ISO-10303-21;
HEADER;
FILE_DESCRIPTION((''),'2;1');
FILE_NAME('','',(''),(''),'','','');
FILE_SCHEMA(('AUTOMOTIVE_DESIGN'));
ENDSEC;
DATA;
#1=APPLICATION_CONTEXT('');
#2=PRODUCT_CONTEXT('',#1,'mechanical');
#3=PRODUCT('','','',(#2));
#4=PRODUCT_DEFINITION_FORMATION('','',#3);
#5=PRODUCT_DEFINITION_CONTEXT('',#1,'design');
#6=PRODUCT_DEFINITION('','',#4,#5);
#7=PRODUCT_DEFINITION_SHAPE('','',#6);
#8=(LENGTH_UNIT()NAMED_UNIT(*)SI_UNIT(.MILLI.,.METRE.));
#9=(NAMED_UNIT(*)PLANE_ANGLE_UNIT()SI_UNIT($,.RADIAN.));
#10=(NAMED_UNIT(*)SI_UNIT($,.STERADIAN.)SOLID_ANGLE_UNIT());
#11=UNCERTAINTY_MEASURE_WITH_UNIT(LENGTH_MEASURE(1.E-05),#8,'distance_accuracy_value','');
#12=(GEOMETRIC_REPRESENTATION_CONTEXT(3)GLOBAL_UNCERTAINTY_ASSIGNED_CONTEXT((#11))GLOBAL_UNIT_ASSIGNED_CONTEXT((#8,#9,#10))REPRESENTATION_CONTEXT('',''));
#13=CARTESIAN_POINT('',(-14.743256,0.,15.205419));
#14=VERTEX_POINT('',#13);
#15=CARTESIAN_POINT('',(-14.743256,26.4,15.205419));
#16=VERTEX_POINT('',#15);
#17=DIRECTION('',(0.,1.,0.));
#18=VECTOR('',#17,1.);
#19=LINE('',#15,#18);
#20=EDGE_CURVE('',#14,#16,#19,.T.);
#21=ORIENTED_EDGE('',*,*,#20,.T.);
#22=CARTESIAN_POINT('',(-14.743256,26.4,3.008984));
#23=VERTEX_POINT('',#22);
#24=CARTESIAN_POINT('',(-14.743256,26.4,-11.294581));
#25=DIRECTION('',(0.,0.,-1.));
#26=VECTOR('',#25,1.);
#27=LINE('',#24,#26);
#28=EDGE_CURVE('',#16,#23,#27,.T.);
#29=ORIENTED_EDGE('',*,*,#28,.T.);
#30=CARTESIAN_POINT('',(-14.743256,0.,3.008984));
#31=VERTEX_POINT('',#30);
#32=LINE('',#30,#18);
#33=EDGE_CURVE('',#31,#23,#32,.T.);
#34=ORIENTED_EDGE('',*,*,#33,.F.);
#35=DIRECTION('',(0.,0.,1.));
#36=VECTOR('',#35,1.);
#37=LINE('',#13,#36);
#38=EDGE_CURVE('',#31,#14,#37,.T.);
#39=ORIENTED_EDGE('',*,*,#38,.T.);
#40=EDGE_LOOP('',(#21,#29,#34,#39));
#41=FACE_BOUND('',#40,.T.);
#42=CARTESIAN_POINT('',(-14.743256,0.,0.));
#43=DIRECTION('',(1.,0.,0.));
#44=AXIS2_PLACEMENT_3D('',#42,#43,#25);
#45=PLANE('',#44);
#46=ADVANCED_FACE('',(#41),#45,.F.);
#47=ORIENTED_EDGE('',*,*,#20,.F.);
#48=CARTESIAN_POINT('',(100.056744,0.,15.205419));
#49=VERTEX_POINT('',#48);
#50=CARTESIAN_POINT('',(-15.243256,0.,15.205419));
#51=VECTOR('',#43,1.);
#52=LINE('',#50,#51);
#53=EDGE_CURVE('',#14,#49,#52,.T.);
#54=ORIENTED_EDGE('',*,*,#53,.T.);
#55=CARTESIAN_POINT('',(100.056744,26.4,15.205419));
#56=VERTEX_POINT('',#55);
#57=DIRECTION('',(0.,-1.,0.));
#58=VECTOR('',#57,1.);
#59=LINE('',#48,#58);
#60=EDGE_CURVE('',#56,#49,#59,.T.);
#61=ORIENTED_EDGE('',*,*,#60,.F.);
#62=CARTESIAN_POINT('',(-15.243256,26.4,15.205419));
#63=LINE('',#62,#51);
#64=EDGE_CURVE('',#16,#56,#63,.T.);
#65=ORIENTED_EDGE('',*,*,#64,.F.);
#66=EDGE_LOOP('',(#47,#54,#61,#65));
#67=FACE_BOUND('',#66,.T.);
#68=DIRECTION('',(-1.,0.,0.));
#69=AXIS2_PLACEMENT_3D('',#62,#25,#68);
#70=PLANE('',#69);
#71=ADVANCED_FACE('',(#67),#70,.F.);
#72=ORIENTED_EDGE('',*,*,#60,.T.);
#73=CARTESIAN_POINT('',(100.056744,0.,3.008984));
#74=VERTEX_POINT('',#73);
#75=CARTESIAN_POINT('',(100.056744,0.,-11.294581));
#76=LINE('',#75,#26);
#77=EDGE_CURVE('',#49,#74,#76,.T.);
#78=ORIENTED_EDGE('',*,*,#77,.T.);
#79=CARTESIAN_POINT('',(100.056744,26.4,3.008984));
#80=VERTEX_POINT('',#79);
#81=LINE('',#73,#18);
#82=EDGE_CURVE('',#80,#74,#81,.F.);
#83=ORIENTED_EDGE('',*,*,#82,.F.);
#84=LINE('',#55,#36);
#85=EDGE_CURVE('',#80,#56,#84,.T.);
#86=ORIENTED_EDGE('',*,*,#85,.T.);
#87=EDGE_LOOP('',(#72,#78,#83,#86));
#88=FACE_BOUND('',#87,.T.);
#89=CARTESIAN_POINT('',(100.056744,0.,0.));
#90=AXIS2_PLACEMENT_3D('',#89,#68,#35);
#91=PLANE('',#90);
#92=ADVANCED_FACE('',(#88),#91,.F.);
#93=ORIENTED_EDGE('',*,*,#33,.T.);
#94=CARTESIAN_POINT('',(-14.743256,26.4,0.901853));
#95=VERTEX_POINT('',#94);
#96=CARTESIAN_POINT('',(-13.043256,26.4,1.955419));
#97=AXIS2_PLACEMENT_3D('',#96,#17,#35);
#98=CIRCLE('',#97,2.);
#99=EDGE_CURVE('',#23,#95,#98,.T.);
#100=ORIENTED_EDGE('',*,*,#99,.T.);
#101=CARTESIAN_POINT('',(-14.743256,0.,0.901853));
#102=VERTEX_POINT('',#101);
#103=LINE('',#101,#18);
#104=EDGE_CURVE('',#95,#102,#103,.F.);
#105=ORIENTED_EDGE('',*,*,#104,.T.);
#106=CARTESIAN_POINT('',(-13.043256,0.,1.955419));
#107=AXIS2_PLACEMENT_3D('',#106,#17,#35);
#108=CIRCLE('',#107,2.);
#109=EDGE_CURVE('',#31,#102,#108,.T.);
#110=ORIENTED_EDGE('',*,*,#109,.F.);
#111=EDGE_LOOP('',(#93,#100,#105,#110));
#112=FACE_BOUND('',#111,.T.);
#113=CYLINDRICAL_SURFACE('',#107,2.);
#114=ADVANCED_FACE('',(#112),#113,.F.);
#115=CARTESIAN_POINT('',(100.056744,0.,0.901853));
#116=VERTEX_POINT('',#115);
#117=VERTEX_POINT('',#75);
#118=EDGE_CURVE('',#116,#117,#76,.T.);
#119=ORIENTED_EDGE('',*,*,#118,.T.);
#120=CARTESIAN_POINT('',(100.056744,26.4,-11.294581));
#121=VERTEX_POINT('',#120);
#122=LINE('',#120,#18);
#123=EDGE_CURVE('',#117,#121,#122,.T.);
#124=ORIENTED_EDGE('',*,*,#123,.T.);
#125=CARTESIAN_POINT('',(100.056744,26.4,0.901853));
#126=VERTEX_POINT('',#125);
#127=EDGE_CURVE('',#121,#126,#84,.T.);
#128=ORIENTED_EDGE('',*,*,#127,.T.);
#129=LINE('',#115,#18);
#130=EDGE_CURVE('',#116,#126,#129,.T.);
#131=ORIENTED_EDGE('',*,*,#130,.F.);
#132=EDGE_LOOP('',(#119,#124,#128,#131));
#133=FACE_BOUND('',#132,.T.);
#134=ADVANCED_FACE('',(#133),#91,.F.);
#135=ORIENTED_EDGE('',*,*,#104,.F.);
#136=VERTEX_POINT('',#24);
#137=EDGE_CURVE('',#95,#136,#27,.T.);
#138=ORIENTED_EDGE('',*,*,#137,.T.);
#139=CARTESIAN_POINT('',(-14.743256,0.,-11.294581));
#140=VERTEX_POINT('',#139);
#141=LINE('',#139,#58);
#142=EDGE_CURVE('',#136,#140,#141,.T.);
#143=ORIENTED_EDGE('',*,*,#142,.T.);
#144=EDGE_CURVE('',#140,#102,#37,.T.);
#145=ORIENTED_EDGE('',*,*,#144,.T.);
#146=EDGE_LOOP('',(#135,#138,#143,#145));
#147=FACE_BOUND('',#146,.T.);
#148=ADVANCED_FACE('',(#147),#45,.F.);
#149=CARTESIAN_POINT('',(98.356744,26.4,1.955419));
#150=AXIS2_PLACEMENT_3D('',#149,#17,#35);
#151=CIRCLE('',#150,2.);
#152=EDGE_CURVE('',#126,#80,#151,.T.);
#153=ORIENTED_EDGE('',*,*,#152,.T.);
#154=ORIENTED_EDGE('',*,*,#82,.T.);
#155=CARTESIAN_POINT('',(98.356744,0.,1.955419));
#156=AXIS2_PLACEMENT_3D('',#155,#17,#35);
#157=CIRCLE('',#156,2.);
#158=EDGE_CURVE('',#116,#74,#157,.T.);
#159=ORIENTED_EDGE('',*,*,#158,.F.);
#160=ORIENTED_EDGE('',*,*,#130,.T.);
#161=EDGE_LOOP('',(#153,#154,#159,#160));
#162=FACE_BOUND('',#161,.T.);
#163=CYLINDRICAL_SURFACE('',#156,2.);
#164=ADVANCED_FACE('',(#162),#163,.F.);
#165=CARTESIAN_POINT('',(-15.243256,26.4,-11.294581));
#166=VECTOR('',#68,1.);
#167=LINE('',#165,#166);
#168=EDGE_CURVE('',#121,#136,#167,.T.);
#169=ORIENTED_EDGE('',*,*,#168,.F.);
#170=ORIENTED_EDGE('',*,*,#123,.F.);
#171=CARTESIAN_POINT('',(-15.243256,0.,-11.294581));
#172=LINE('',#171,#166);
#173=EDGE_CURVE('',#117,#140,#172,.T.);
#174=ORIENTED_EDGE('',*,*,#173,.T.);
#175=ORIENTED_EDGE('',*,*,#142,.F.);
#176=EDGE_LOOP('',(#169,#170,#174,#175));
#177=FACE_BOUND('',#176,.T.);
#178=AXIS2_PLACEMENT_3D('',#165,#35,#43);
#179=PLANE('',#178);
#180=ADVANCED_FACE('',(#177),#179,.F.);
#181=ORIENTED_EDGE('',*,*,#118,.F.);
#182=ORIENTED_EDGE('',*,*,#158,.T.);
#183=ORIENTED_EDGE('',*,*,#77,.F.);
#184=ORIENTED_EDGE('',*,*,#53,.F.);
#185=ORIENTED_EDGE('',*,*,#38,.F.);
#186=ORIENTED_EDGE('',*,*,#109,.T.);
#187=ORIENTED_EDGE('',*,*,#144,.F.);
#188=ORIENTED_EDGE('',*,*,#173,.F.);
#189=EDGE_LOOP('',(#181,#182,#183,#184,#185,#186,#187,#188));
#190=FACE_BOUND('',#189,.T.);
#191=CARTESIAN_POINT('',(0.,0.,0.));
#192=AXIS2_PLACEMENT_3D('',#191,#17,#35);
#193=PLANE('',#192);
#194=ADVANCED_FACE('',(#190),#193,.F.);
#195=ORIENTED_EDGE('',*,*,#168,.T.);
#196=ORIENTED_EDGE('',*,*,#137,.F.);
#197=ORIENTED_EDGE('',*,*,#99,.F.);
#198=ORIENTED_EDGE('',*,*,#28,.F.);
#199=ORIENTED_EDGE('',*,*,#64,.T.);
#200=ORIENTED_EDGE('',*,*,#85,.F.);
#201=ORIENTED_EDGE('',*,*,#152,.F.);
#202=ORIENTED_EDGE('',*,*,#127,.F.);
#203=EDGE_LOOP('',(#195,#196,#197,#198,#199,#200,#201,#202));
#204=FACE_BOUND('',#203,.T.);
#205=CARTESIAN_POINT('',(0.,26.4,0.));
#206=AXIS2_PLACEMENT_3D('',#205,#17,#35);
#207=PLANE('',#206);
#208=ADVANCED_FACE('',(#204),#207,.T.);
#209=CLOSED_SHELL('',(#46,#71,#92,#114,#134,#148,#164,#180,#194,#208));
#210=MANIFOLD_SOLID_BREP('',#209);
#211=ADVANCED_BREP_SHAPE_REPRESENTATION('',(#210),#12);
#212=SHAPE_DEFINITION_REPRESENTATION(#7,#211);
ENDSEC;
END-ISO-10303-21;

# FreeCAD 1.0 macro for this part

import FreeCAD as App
import Part
import Sketcher
from FreeCAD import Vector

doc = App.newDocument("Part")
params = doc.addObject("Spreadsheet::Sheet", "Params")
for row, (alias, value) in enumerate([
    ("sketch1_width", "115.8 mm"),
    ("sketch1_height", "26.5 mm"),
    ("pad1_length", "26.4 mm"),
    ("sketch2_diameter", "4 mm"),
    ("sketch3_width", "26.4 mm"),
    ("sketch3_height", "26.5 mm"),
    ("pocket2_length", "0.5 mm"),
    ("sketch4_width", "26.4 mm"),
    ("sketch4_height", "26.5 mm"),
    ("pocket3_length", "0.5 mm"),
], start=1):
    params.set(f"A{row}", alias)
    params.set(f"B{row}", "=" + value)
    params.setAlias(f"B{row}", alias)

body = doc.addObject("PartDesign::Body", "Body")

# Sketch on XZ plane
sketch1 = body.newObject("Sketcher::SketchObject", "Sketch")
sketch1.AttachmentSupport = (doc.getObject("XZ_Plane"), [""])
sketch1.MapMode = "FlatFace"
sketch1.addGeometry([
    Part.LineSegment(Vector(-15, -11, 0), Vector(-15, 15, 0)),
    Part.LineSegment(Vector(-15, 15, 0), Vector(101, 15, 0)),
    Part.LineSegment(Vector(101, 15, 0), Vector(101, -11, 0)),
    Part.LineSegment(Vector(101, -11, 0), Vector(-15, -11, 0)),
], False)
sketch1.addConstraint([
    Sketcher.Constraint("Coincident", 0, 2, 1, 1),
    Sketcher.Constraint("Coincident", 1, 2, 2, 1),
    Sketcher.Constraint("Coincident", 2, 2, 3, 1),
    Sketcher.Constraint("Coincident", 3, 2, 0, 1),
    Sketcher.Constraint("Vertical", 0),
    Sketcher.Constraint("Horizontal", 1),
    Sketcher.Constraint("Vertical", 2),
    Sketcher.Constraint("Horizontal", 3),
    Sketcher.Constraint("DistanceX", 1, 1, 1, 2, 115.8),
    Sketcher.Constraint("DistanceY", 0, 1, 0, 2, 26.5),
    Sketcher.Constraint("DistanceY", -1, 1, 0, 2, 15.205419),
    Sketcher.Constraint("DistanceX", 0, 2, -1, 1, 15.243256),
])
sketch1.setExpression("Constraints[8]", "Params.sketch1_width")
sketch1.setExpression("Constraints[9]", "Params.sketch1_height")
pad1 = body.newObject("PartDesign::Pad", "Pad")
pad1.Profile = sketch1
pad1.setExpression("Length", "Params.pad1_length")
pad1.Reversed = True

# Sketch on XZ plane
sketch2 = body.newObject("Sketcher::SketchObject", "Sketch001")
sketch2.AttachmentSupport = (doc.getObject("XZ_Plane"), [""])
sketch2.MapMode = "FlatFace"
sketch2.AttachmentOffset = App.Placement(Vector(0, 0, -26.4), App.Rotation())
sketch2.addGeometry([
    Part.Circle(Vector(-13, 2, 0), Vector(0, 0, 1), 2),
    Part.Circle(Vector(98.4, 2, 0), Vector(0, 0, 1), 2),
], False)
sketch2.addConstraint([
    Sketcher.Constraint("Equal", 0, 1),
    Sketcher.Constraint("Horizontal", 0, 3, 1, 3),
    Sketcher.Constraint("Diameter", 0, 4.0),
    Sketcher.Constraint("DistanceX", 0, 3, 1, 3, 111.4),
    Sketcher.Constraint("DistanceY", -1, 1, 0, 3, 1.955419),
    Sketcher.Constraint("DistanceX", 0, 3, -1, 1, 13.043256),
])
sketch2.setExpression("Constraints[2]", "Params.sketch2_diameter")
pocket1 = body.newObject("PartDesign::Pocket", "Pocket")
pocket1.Profile = sketch2
pocket1.Type = "ThroughAll"
pocket1.Reversed = True

# Sketch on YZ plane
sketch3 = body.newObject("Sketcher::SketchObject", "Sketch002")
sketch3.AttachmentSupport = (doc.getObject("YZ_Plane"), [""])
sketch3.MapMode = "FlatFace"
sketch3.AttachmentOffset = App.Placement(Vector(0, 0, 100.556744), App.Rotation())
sketch3.addGeometry([
    Part.LineSegment(Vector(26, 15, 0), Vector(0, 15, 0)),
    Part.LineSegment(Vector(0, 15, 0), Vector(0, -11, 0)),
    Part.LineSegment(Vector(0, -11, 0), Vector(26, -11, 0)),
    Part.LineSegment(Vector(26, -11, 0), Vector(26, 15, 0)),
], False)
sketch3.addConstraint([
    Sketcher.Constraint("Coincident", 0, 2, 1, 1),
    Sketcher.Constraint("Coincident", 1, 2, 2, 1),
    Sketcher.Constraint("Coincident", 2, 2, 3, 1),
    Sketcher.Constraint("Coincident", 3, 2, 0, 1),
    Sketcher.Constraint("Horizontal", 0),
    Sketcher.Constraint("Vertical", 1),
    Sketcher.Constraint("Horizontal", 2),
    Sketcher.Constraint("Vertical", 3),
    Sketcher.Constraint("PointOnObject", 0, 2, -2),
    Sketcher.Constraint("DistanceX", 0, 2, 0, 1, 26.4),
    Sketcher.Constraint("DistanceY", 1, 2, 1, 1, 26.5),
    Sketcher.Constraint("DistanceY", -1, 1, 0, 2, 15.205419),
])
sketch3.setExpression("Constraints[9]", "Params.sketch3_width")
sketch3.setExpression("Constraints[10]", "Params.sketch3_height")
pocket2 = body.newObject("PartDesign::Pocket", "Pocket001")
pocket2.Profile = sketch3
pocket2.setExpression("Length", "Params.pocket2_length")

# Sketch on YZ plane
sketch4 = body.newObject("Sketcher::SketchObject", "Sketch003")
sketch4.AttachmentSupport = (doc.getObject("YZ_Plane"), [""])
sketch4.MapMode = "FlatFace"
sketch4.AttachmentOffset = App.Placement(Vector(0, 0, -15.243256), App.Rotation())
sketch4.addGeometry([
    Part.LineSegment(Vector(26, -11, 0), Vector(0, -11, 0)),
    Part.LineSegment(Vector(0, -11, 0), Vector(0, 15, 0)),
    Part.LineSegment(Vector(0, 15, 0), Vector(26, 15, 0)),
    Part.LineSegment(Vector(26, 15, 0), Vector(26, -11, 0)),
], False)
sketch4.addConstraint([
    Sketcher.Constraint("Coincident", 0, 2, 1, 1),
    Sketcher.Constraint("Coincident", 1, 2, 2, 1),
    Sketcher.Constraint("Coincident", 2, 2, 3, 1),
    Sketcher.Constraint("Coincident", 3, 2, 0, 1),
    Sketcher.Constraint("Horizontal", 0),
    Sketcher.Constraint("Vertical", 1),
    Sketcher.Constraint("Horizontal", 2),
    Sketcher.Constraint("Vertical", 3),
    Sketcher.Constraint("PointOnObject", 0, 2, -2),
    Sketcher.Constraint("DistanceX", 0, 2, 0, 1, 26.4),
    Sketcher.Constraint("DistanceY", 1, 1, 1, 2, 26.5),
    Sketcher.Constraint("DistanceY", 0, 2, -1, 1, 11.294581),
])
sketch4.setExpression("Constraints[9]", "Params.sketch4_width")
sketch4.setExpression("Constraints[10]", "Params.sketch4_height")
pocket3 = body.newObject("PartDesign::Pocket", "Pocket002")
pocket3.Profile = sketch4
pocket3.setExpression("Length", "Params.pocket3_length")
pocket3.Reversed = True

doc.recompute()
